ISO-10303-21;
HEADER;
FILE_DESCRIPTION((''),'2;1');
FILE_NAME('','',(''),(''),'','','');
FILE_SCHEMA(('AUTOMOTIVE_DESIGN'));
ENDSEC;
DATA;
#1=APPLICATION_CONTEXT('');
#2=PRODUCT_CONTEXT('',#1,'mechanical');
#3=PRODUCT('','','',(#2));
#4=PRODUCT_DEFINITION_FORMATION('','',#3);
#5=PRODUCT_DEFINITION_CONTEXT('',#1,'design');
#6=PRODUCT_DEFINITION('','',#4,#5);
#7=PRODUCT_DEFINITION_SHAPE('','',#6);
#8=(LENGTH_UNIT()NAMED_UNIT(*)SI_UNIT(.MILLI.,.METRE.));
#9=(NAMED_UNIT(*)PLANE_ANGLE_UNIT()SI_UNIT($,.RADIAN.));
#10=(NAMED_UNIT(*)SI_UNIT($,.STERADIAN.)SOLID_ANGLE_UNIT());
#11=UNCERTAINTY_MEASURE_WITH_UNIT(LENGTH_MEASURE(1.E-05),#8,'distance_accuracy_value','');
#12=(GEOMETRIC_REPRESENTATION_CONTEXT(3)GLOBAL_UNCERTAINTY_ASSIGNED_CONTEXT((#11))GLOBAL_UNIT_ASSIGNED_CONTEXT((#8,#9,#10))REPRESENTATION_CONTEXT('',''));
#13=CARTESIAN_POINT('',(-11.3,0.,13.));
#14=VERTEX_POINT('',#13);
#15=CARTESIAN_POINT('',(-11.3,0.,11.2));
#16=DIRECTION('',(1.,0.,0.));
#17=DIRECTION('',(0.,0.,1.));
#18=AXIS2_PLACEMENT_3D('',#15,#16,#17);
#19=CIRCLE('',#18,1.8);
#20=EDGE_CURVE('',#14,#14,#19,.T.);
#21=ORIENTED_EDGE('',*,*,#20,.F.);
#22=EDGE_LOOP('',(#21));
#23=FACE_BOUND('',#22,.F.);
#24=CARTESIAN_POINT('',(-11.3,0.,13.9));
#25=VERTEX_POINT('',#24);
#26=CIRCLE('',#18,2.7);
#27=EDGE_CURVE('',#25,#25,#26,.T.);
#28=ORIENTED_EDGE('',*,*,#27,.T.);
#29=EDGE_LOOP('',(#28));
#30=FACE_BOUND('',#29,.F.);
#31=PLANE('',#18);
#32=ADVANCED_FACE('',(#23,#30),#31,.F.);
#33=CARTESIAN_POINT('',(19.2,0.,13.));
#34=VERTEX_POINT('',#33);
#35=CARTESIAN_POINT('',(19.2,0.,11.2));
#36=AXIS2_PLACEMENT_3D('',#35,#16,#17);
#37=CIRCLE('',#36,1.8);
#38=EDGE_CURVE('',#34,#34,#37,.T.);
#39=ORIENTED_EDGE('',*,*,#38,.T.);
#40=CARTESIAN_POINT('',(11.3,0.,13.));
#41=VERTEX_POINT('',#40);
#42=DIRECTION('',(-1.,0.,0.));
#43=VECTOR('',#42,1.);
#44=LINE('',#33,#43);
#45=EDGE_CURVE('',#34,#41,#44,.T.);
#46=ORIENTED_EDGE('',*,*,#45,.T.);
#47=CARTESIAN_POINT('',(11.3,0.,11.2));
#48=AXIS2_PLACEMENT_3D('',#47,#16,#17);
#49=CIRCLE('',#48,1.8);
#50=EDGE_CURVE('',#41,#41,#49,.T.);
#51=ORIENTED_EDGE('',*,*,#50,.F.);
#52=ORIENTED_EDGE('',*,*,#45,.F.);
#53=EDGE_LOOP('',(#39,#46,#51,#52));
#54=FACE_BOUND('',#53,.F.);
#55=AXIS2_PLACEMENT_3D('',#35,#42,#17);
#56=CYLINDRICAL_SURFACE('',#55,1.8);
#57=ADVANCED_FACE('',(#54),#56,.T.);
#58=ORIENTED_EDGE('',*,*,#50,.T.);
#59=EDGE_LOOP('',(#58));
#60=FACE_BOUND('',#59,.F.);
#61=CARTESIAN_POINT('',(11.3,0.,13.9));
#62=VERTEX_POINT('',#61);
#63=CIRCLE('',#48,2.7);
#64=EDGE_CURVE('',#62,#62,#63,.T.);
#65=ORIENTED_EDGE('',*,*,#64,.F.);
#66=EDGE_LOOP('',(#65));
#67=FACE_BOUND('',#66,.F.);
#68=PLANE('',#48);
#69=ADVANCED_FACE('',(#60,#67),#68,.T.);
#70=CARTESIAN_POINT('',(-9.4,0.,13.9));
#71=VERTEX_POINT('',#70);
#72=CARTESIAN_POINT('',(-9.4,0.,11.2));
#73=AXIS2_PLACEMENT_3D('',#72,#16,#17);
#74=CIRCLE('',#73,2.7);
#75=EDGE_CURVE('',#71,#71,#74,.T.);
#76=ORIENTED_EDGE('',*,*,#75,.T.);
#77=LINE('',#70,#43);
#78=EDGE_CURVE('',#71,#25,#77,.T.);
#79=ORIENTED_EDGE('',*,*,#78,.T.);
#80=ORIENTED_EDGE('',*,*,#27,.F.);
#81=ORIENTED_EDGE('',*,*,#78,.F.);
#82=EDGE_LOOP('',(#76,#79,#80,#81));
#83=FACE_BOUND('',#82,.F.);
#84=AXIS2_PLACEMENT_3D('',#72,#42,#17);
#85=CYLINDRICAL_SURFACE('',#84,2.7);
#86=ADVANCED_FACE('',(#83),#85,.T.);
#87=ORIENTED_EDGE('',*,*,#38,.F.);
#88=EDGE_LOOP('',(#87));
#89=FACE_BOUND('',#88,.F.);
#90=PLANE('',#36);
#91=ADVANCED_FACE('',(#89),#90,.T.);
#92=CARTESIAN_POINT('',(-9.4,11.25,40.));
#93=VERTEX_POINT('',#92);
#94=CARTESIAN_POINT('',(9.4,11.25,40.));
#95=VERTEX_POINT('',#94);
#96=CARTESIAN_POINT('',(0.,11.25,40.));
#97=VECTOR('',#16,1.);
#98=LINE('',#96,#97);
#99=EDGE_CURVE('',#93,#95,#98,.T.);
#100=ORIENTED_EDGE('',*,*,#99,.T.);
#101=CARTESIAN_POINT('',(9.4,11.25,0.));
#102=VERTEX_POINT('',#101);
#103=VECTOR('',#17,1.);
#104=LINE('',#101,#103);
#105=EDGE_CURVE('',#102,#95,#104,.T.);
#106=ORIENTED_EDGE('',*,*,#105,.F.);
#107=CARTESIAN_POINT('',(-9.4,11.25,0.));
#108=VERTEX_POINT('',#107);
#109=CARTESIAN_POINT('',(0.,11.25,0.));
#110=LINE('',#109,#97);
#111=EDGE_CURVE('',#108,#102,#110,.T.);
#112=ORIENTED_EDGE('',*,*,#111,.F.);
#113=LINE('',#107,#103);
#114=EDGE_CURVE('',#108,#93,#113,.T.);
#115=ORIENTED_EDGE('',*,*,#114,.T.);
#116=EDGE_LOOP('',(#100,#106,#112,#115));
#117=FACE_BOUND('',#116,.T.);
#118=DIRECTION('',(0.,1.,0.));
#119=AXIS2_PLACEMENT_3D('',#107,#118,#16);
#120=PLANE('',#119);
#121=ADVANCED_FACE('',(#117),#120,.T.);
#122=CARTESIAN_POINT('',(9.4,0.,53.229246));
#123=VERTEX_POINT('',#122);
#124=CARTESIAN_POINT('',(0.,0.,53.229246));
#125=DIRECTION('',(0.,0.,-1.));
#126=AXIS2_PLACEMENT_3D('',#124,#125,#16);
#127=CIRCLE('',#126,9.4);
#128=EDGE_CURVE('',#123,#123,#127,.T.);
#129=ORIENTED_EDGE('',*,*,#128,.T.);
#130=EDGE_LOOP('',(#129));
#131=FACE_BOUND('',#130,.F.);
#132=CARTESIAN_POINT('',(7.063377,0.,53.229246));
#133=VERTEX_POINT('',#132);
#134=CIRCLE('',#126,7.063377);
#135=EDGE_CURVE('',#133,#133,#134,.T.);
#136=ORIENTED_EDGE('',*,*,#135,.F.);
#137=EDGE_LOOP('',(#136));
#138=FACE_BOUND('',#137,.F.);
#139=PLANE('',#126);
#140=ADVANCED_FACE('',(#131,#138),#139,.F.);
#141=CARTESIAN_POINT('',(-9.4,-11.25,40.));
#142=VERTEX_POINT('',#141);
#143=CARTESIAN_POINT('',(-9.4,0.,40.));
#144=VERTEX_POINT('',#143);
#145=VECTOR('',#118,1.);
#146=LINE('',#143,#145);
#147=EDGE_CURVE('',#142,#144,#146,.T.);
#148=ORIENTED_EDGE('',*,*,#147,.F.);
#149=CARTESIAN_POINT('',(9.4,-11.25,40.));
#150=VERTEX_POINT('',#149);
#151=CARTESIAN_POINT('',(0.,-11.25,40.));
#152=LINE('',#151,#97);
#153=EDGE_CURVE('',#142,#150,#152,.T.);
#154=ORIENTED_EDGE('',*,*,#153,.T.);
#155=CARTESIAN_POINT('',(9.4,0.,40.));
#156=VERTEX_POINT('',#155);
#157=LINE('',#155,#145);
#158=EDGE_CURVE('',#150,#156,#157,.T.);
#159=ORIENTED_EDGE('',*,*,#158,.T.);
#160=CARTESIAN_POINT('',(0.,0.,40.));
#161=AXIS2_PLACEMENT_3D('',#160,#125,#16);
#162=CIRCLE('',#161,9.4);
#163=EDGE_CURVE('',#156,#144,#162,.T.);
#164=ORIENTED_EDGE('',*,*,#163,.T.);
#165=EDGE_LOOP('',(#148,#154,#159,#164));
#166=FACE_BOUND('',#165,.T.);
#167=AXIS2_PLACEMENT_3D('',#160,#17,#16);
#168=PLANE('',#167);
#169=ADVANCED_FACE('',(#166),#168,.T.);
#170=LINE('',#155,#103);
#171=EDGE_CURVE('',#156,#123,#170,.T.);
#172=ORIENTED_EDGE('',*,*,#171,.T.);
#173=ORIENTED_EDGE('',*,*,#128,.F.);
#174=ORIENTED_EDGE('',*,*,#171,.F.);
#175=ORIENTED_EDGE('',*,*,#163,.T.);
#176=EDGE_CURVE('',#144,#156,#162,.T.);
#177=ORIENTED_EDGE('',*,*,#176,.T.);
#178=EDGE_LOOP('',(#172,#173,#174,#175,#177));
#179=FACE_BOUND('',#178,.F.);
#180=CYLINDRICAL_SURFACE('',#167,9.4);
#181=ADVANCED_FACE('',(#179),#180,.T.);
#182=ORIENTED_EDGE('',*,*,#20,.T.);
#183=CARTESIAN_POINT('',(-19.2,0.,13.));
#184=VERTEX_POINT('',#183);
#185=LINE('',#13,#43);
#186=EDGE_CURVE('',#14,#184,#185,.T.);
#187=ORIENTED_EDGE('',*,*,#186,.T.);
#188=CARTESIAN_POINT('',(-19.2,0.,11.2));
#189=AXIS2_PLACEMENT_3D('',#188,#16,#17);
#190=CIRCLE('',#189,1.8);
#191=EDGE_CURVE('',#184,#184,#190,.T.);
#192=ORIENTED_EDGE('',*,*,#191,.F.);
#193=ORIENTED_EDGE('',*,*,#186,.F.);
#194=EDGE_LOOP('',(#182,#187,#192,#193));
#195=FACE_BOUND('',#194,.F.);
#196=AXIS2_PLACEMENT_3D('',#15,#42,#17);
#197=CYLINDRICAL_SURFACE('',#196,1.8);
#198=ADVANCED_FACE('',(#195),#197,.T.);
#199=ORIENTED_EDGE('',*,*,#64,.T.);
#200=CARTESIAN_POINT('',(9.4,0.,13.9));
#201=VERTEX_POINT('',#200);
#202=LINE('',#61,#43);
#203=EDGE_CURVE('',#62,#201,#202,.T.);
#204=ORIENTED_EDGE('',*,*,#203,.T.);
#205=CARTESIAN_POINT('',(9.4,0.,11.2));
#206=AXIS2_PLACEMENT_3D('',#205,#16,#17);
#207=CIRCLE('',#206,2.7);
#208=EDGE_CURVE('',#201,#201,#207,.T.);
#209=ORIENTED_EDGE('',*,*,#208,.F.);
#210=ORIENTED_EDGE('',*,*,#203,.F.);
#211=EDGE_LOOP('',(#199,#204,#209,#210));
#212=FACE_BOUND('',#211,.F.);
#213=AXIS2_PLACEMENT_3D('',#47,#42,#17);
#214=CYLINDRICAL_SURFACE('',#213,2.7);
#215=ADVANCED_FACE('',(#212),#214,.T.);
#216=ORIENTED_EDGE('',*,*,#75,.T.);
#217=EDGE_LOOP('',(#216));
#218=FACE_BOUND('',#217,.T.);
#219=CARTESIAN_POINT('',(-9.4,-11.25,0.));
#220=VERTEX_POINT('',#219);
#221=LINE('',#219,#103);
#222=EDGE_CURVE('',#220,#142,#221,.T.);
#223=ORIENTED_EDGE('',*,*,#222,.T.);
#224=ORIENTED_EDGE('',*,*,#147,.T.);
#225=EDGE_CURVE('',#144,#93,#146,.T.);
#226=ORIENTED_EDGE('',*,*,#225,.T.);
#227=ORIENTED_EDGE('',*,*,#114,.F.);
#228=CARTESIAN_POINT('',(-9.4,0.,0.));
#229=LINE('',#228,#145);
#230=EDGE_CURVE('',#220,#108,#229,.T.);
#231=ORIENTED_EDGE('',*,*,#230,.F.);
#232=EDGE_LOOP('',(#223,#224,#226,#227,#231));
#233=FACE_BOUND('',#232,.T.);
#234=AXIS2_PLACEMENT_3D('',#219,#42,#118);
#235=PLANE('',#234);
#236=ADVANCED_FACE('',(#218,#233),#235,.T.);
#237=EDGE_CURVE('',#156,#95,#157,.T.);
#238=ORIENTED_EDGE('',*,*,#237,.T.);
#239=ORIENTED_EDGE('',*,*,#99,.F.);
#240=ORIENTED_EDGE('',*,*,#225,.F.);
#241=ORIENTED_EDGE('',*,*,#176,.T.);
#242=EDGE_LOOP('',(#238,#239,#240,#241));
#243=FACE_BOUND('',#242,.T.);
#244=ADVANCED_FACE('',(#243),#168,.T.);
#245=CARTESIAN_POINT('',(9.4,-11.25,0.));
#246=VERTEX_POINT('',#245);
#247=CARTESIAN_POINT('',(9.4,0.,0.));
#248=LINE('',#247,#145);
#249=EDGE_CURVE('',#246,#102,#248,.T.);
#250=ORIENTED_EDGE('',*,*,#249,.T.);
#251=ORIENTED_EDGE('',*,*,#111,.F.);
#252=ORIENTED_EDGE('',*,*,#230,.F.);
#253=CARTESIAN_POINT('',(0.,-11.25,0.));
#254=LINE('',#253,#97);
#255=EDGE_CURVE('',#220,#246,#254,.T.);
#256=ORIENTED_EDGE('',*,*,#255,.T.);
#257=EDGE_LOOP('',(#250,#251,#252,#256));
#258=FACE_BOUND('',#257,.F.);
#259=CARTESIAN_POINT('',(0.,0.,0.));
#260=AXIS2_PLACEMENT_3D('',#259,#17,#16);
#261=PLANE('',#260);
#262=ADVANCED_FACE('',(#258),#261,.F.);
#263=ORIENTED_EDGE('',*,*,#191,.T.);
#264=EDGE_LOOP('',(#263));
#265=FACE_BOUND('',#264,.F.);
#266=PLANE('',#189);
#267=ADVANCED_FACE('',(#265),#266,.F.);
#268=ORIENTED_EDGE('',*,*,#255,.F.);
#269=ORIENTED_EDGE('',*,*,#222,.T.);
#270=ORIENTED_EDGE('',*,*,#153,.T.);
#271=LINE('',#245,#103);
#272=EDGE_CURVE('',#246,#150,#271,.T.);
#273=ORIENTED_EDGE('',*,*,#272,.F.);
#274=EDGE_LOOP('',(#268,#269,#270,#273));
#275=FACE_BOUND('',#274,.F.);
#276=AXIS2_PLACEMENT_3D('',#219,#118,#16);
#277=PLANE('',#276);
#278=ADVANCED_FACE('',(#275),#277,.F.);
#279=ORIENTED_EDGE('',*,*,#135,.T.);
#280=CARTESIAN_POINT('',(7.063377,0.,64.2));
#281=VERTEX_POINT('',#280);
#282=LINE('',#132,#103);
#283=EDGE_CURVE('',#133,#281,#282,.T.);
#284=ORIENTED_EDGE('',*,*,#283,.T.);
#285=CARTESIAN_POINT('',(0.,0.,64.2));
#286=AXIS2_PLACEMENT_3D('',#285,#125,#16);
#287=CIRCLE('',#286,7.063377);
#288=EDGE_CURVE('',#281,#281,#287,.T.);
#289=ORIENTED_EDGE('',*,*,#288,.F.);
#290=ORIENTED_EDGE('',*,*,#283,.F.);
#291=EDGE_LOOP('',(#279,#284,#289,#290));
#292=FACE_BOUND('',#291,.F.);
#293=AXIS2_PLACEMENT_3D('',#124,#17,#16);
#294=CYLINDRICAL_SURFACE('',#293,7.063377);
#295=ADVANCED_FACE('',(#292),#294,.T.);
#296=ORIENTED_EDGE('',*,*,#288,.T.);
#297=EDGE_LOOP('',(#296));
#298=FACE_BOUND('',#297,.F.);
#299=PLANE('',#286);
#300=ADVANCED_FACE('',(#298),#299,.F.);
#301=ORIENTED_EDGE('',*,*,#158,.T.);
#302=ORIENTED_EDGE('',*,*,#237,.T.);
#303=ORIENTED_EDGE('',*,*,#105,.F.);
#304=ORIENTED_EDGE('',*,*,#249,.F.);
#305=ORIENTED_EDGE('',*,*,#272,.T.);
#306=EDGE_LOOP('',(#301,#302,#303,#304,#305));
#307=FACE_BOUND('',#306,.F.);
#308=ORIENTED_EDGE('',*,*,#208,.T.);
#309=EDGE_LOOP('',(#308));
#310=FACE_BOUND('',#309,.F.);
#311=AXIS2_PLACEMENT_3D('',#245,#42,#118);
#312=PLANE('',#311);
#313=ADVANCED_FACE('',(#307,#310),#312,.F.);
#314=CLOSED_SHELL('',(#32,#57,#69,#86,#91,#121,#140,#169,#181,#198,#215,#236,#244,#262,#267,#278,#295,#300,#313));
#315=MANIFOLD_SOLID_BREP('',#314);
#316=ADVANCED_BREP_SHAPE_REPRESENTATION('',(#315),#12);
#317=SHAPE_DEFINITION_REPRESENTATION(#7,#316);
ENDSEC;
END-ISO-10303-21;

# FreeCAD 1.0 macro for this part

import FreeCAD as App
import Part
import Sketcher

V = App.Vector

doc = App.newDocument("Part")
params = doc.addObject("Spreadsheet::Sheet", "Params")
for row, (alias, value) in enumerate([
    ("sketch1_width", "18.8 mm"),
    ("sketch1_height", "22.5 mm"),
    ("pad1_length", "40 mm"),
    ("sketch2_width", "9.4 mm"),
    ("sketch2_height", "24.2 mm"),
    ("revolution_angle", "360 deg"),
    ("sketch3_width", "1.9 mm"),
    ("sketch3_width2", "9.8 mm"),
    ("sketch3_width3", "38.4 mm"),
    ("sketch3_height", "2.7 mm"),
    ("sketch3_height2", "1.8 mm"),
    ("revolution2_angle", "360 deg"),
], start=1):
    params.set(f"A{row}", alias)
    params.set(f"B{row}", "=" + value)
    params.setAlias(f"B{row}", alias)

body = doc.addObject("PartDesign::Body", "Body")

sketch1 = body.newObject("Sketcher::SketchObject", "Sketch")
sketch1.AttachmentSupport = (doc.getObject("XY_Plane"), [""])
sketch1.MapMode = "FlatFace"
sketch1.addGeometry([
    Part.LineSegment(V(-9.4, 11.25, 0), V(-9.4, -11.25, 0)),
    Part.LineSegment(V(-9.4, -11.25, 0), V(9.4, -11.25, 0)),
    Part.LineSegment(V(9.4, -11.25, 0), V(9.4, 11.25, 0)),
    Part.LineSegment(V(9.4, 11.25, 0), V(-9.4, 11.25, 0)),
], False)
sketch1.addConstraint([
    Sketcher.Constraint("Coincident", 0, 2, 1, 1),
    Sketcher.Constraint("Coincident", 1, 2, 2, 1),
    Sketcher.Constraint("Coincident", 2, 2, 3, 1),
    Sketcher.Constraint("Coincident", 3, 2, 0, 1),
    Sketcher.Constraint("Vertical", 0),
    Sketcher.Constraint("Horizontal", 1),
    Sketcher.Constraint("Vertical", 2),
    Sketcher.Constraint("Horizontal", 3),
    Sketcher.Constraint("Symmetric", 0, 2, 2, 2, -1, 1),
    Sketcher.Constraint("DistanceX", 1, 1, 1, 2, 18.8),
    Sketcher.Constraint("DistanceY", 0, 2, 0, 1, 22.5),
])
sketch1.setExpression("Constraints[9]", "Params.sketch1_width")
sketch1.setExpression("Constraints[10]", "Params.sketch1_height")
pad1 = body.newObject("PartDesign::Pad", "Pad")
pad1.Profile = sketch1
pad1.setExpression("Length", "Params.pad1_length")

sketch2 = body.newObject("Sketcher::SketchObject", "Sketch001")
sketch2.AttachmentSupport = (doc.getObject("XZ_Plane"), [""])
sketch2.MapMode = "FlatFace"
sketch2.addGeometry([
    Part.LineSegment(V(7.063377, 64.2, 0), V(0, 64.2, 0)),
    Part.LineSegment(V(0, 64.2, 0), V(0, 40, 0)),
    Part.LineSegment(V(0, 40, 0), V(9.4, 40, 0)),
    Part.LineSegment(V(9.4, 40, 0), V(9.4, 53.229246, 0)),
    Part.LineSegment(V(9.4, 53.229246, 0), V(7.063377, 53.229246, 0)),
    Part.LineSegment(V(7.063377, 53.229246, 0), V(7.063377, 64.2, 0)),
], False)
sketch2.addConstraint([
    Sketcher.Constraint("Coincident", 0, 2, 1, 1),
    Sketcher.Constraint("Coincident", 1, 2, 2, 1),
    Sketcher.Constraint("Coincident", 2, 2, 3, 1),
    Sketcher.Constraint("Coincident", 3, 2, 4, 1),
    Sketcher.Constraint("Coincident", 4, 2, 5, 1),
    Sketcher.Constraint("Coincident", 5, 2, 0, 1),
    Sketcher.Constraint("Horizontal", 0),
    Sketcher.Constraint("Vertical", 1),
    Sketcher.Constraint("Horizontal", 2),
    Sketcher.Constraint("Vertical", 3),
    Sketcher.Constraint("Horizontal", 4),
    Sketcher.Constraint("Vertical", 5),
    Sketcher.Constraint("PointOnObject", 0, 2, -2),
    Sketcher.Constraint("DistanceX", 2, 1, 2, 2, 9.4),
    Sketcher.Constraint("DistanceY", 1, 2, 1, 1, 24.2),
    Sketcher.Constraint("DistanceY", -1, 1, 1, 2, 40.0),
    Sketcher.Constraint("DistanceX", 0, 2, 0, 1, 7.063377),
    Sketcher.Constraint("DistanceY", 3, 1, 3, 2, 13.229246),
])
sketch2.setExpression("Constraints[13]", "Params.sketch2_width")
sketch2.setExpression("Constraints[14]", "Params.sketch2_height")
revolution = body.newObject("PartDesign::Revolution", "Revolution")
revolution.Profile = sketch2
revolution.ReferenceAxis = (sketch2, ["V_Axis"])
revolution.setExpression("Angle", "Params.revolution_angle")

sketch3 = body.newObject("Sketcher::SketchObject", "Sketch002")
sketch3.AttachmentSupport = (doc.getObject("XZ_Plane"), [""])
sketch3.MapMode = "FlatFace"
sketch3.addGeometry([
    Part.LineSegment(V(11.3, 13.9, 0), V(9.4, 13.9, 0)),
    Part.LineSegment(V(9.4, 13.9, 0), V(9.4, 11.2, 0)),
    Part.LineSegment(V(9.4, 11.2, 0), V(19.2, 11.2, 0)),
    Part.LineSegment(V(19.2, 11.2, 0), V(19.2, 13, 0)),
    Part.LineSegment(V(19.2, 13, 0), V(11.3, 13, 0)),
    Part.LineSegment(V(11.3, 13, 0), V(11.3, 13.9, 0)),
    Part.LineSegment(V(-19.2, 11.2, 0), V(-9.4, 11.2, 0)),
    Part.LineSegment(V(-9.4, 11.2, 0), V(-9.4, 13.9, 0)),
    Part.LineSegment(V(-9.4, 13.9, 0), V(-11.3, 13.9, 0)),
    Part.LineSegment(V(-11.3, 13.9, 0), V(-11.3, 13, 0)),
    Part.LineSegment(V(-11.3, 13, 0), V(-19.2, 13, 0)),
    Part.LineSegment(V(-19.2, 13, 0), V(-19.2, 11.2, 0)),
], False)
sketch3.addGeometry(Part.LineSegment(V(-19.2, 11.2, 0), V(19.2, 11.2, 0)), True)
sketch3.addConstraint([
    Sketcher.Constraint("Coincident", 0, 2, 1, 1),
    Sketcher.Constraint("Coincident", 1, 2, 2, 1),
    Sketcher.Constraint("Coincident", 2, 2, 3, 1),
    Sketcher.Constraint("Coincident", 3, 2, 4, 1),
    Sketcher.Constraint("Coincident", 4, 2, 5, 1),
    Sketcher.Constraint("Coincident", 5, 2, 0, 1),
    Sketcher.Constraint("Coincident", 6, 2, 7, 1),
    Sketcher.Constraint("Coincident", 7, 2, 8, 1),
    Sketcher.Constraint("Coincident", 8, 2, 9, 1),
    Sketcher.Constraint("Coincident", 9, 2, 10, 1),
    Sketcher.Constraint("Coincident", 10, 2, 11, 1),
    Sketcher.Constraint("Coincident", 11, 2, 6, 1),
    Sketcher.Constraint("Horizontal", 0),
    Sketcher.Constraint("Vertical", 1),
    Sketcher.Constraint("Horizontal", 2),
    Sketcher.Constraint("Vertical", 3),
    Sketcher.Constraint("Horizontal", 4),
    Sketcher.Constraint("Vertical", 5),
    Sketcher.Constraint("Horizontal", 6),
    Sketcher.Constraint("Vertical", 7),
    Sketcher.Constraint("Horizontal", 8),
    Sketcher.Constraint("Vertical", 9),
    Sketcher.Constraint("Horizontal", 10),
    Sketcher.Constraint("Vertical", 11),
    Sketcher.Constraint("Horizontal", 12),
    Sketcher.Constraint("Coincident", 12, 1, 11, 2),
    Sketcher.Constraint("Coincident", 12, 2, 2, 2),
    Sketcher.Constraint("Symmetric", 0, 2, 7, 2, -2),
    Sketcher.Constraint("Symmetric", 4, 2, 9, 2, -2),
    Sketcher.Constraint("Equal", 2, 6),
    Sketcher.Constraint("DistanceX", 0, 2, 0, 1, 1.9),
    Sketcher.Constraint("DistanceX", 2, 1, 2, 2, 9.8),
    Sketcher.Constraint("DistanceX", 12, 1, 12, 2, 38.4),
    Sketcher.Constraint("DistanceY", 1, 2, 1, 1, 2.7),
    Sketcher.Constraint("DistanceY", 3, 1, 3, 2, 1.8),
    Sketcher.Constraint("DistanceY", -1, 1, 3, 2, 13.0),
])
sketch3.setExpression("Constraints[30]", "Params.sketch3_width")
sketch3.setExpression("Constraints[31]", "Params.sketch3_width2")
sketch3.setExpression("Constraints[32]", "Params.sketch3_width3")
sketch3.setExpression("Constraints[33]", "Params.sketch3_height")
sketch3.setExpression("Constraints[34]", "Params.sketch3_height2")
revolution2 = body.newObject("PartDesign::Revolution", "Revolution001")
revolution2.Profile = sketch3
revolution2.ReferenceAxis = (sketch3, ["Axis0"])
revolution2.setExpression("Angle", "Params.revolution2_angle")

doc.recompute()
